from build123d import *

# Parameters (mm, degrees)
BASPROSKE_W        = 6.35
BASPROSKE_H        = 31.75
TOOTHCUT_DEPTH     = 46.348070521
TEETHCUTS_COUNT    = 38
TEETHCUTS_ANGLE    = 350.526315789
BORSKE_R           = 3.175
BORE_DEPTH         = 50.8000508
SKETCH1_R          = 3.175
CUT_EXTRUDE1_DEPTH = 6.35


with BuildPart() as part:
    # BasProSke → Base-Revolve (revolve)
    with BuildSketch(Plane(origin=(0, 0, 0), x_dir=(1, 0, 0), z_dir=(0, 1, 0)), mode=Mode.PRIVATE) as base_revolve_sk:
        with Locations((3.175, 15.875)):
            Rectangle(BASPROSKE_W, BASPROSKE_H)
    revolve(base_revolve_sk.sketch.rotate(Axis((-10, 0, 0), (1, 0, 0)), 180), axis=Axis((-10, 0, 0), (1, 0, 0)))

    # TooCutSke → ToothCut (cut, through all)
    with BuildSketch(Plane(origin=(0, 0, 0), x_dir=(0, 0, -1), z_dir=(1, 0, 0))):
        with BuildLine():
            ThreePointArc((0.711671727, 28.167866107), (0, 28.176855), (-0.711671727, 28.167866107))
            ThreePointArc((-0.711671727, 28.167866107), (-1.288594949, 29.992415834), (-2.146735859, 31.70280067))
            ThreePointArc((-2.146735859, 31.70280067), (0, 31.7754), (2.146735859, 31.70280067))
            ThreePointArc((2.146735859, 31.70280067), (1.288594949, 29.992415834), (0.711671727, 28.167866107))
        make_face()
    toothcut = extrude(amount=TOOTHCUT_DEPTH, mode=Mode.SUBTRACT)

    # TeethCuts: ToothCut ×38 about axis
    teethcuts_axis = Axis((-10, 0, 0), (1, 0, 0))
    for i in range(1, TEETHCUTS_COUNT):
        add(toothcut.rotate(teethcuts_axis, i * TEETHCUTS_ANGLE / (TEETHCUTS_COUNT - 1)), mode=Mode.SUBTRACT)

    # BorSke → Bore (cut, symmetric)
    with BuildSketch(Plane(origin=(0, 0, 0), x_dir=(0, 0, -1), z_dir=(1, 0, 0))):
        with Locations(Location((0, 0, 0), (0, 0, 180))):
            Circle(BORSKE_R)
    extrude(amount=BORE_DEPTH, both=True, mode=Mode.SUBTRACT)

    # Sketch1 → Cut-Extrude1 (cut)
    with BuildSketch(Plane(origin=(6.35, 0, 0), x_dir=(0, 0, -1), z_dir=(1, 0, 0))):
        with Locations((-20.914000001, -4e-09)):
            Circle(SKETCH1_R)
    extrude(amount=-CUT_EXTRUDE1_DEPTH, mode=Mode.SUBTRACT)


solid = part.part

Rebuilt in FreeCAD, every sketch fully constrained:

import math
import FreeCAD as App
import Part
import Sketcher
from FreeCAD import Vector
Q = App.Units.Quantity

doc = App.newDocument("Part")
body = doc.addObject("PartDesign::Body", "Body")

# Sketch on XZ plane
sketch1 = body.newObject("Sketcher::SketchObject", "Sketch")
sketch1.AttachmentSupport = (doc.getObject("XZ_Plane"), [""])
sketch1.MapMode = "FlatFace"
sketch1.addGeometry([
    Part.LineSegment(Vector(0, -32, 0), Vector(0, 0, 0)),
    Part.LineSegment(Vector(0, 0, 0), Vector(6, 0, 0)),
    Part.LineSegment(Vector(6, 0, 0), Vector(6, -32, 0)),
    Part.LineSegment(Vector(6, -32, 0), Vector(0, -32, 0)),
], False)
sketch1.addConstraint([
    Sketcher.Constraint("Coincident", 0, 2, 1, 1),
    Sketcher.Constraint("Coincident", 1, 2, 2, 1),
    Sketcher.Constraint("Coincident", 2, 2, 3, 1),
    Sketcher.Constraint("Coincident", 3, 2, 0, 1),
    Sketcher.Constraint("Vertical", 0),
    Sketcher.Constraint("Horizontal", 1),
    Sketcher.Constraint("Vertical", 2),
    Sketcher.Constraint("Horizontal", 3),
    Sketcher.Constraint("Coincident", 0, 2, -1, 1),
    Sketcher.Constraint("DistanceX", 1, 1, 1, 2, Q("0.25 in")),
    Sketcher.Constraint("DistanceY", 0, 1, 0, 2, Q("1.25 in")),
])
revolution = body.newObject("PartDesign::Revolution", "Revolution")
revolution.Profile = sketch1
revolution.ReferenceAxis = (sketch1, ["H_Axis"])
revolution.Angle = 360

# Sketch on YZ plane
sketch2 = body.newObject("Sketcher::SketchObject", "Sketch001")
sketch2.AttachmentSupport = (doc.getObject("YZ_Plane"), [""])
sketch2.MapMode = "FlatFace"
sketch2.addGeometry([
    Part.ArcOfCircle(Part.Circle(Vector(0, 0, 0), Vector(0, 0, 1), 28.2), math.radians(-1.45), math.radians(1.45)),
    Part.ArcOfCircle(Part.Circle(Vector(25.5, -12.5, 0), Vector(0, 0, 1), 12.1), math.radians(58.81), math.radians(77)),
    Part.ArcOfCircle(Part.Circle(Vector(0, 0, 0), Vector(0, 0, 1), 31.8), math.radians(-3.87), math.radians(3.87)),
    Part.ArcOfCircle(Part.Circle(Vector(25.5, 12.5, 0), Vector(0, 0, 1), 12.1), math.radians(-77), math.radians(-58.81)),
], False)
sketch2.addConstraint([
    Sketcher.Constraint("Coincident", 0, 1, 1, 2),
    Sketcher.Constraint("Coincident", 1, 1, 2, 1),
    Sketcher.Constraint("Coincident", 2, 2, 3, 2),
    Sketcher.Constraint("Coincident", 3, 1, 0, 2),
    Sketcher.Constraint("Coincident", 0, 3, -1, 1),
    Sketcher.Constraint("Coincident", 2, 3, -1, 1),
    Sketcher.Constraint("Equal", 1, 3),
    Sketcher.Constraint("Symmetric", 1, 3, 3, 3, -1),
    Sketcher.Constraint("Radius", 1, Q("0.475 in")),
    Sketcher.Constraint("Radius", 2, Q("1.251 in")),
    Sketcher.Constraint("Radius", 0, Q("28.176854 mm")),
    Sketcher.Constraint("DistanceX", -1, 1, 1, 1, Q("31.702801 mm")),
    Sketcher.Constraint("DistanceX", -1, 1, 1, 3, Q("25.45415 mm")),
])
pocket1 = body.newObject("PartDesign::Pocket", "Pocket")
pocket1.Profile = sketch2
pocket1.Type = "ThroughAll"
pocket1.Reversed = True
doc.recompute()

polarpattern = body.newObject("PartDesign::PolarPattern", "PolarPattern")
polarpattern.Originals = [pocket1]
polarpattern.Axis = (doc.getObject("X_Axis"), [""])
polarpattern.Angle = 360
polarpattern.Occurrences = 38
body.Tip = polarpattern

# Sketch on YZ plane
sketch3 = body.newObject("Sketcher::SketchObject", "Sketch002")
sketch3.AttachmentSupport = (doc.getObject("YZ_Plane"), [""])
sketch3.MapMode = "FlatFace"
sketch3.addGeometry(Part.Circle(Vector(0, 0, 0), Vector(0, 0, 1), 3.2), False)
sketch3.addConstraint([
    Sketcher.Constraint("Coincident", 0, 3, -1, 1),
    Sketcher.Constraint("Diameter", 0, Q("0.25 in")),
])
pocket2 = body.newObject("PartDesign::Pocket", "Pocket001")
pocket2.Profile = sketch3
pocket2.Length = 101.600102
pocket2.Midplane = True

# Sketch on YZ plane
sketch4 = body.newObject("Sketcher::SketchObject", "Sketch003")
sketch4.AttachmentSupport = (doc.getObject("YZ_Plane"), [""])
sketch4.MapMode = "FlatFace"
sketch4.AttachmentOffset = App.Placement(Vector(0, 0, 0.25 * 25.4), App.Rotation())
sketch4.addGeometry(Part.Circle(Vector(0, 20.9, 0), Vector(0, 0, 1), 3.2), False)
sketch4.addConstraint([
    Sketcher.Constraint("PointOnObject", 0, 3, -2),
    Sketcher.Constraint("Diameter", 0, Q("0.25 in")),
    Sketcher.Constraint("DistanceY", -1, 1, 0, 3, Q("20.914 mm")),
])
pocket3 = body.newObject("PartDesign::Pocket", "Pocket002")
pocket3.Profile = sketch4
pocket3.Length = Q("0.25 in")

doc.recompute()
